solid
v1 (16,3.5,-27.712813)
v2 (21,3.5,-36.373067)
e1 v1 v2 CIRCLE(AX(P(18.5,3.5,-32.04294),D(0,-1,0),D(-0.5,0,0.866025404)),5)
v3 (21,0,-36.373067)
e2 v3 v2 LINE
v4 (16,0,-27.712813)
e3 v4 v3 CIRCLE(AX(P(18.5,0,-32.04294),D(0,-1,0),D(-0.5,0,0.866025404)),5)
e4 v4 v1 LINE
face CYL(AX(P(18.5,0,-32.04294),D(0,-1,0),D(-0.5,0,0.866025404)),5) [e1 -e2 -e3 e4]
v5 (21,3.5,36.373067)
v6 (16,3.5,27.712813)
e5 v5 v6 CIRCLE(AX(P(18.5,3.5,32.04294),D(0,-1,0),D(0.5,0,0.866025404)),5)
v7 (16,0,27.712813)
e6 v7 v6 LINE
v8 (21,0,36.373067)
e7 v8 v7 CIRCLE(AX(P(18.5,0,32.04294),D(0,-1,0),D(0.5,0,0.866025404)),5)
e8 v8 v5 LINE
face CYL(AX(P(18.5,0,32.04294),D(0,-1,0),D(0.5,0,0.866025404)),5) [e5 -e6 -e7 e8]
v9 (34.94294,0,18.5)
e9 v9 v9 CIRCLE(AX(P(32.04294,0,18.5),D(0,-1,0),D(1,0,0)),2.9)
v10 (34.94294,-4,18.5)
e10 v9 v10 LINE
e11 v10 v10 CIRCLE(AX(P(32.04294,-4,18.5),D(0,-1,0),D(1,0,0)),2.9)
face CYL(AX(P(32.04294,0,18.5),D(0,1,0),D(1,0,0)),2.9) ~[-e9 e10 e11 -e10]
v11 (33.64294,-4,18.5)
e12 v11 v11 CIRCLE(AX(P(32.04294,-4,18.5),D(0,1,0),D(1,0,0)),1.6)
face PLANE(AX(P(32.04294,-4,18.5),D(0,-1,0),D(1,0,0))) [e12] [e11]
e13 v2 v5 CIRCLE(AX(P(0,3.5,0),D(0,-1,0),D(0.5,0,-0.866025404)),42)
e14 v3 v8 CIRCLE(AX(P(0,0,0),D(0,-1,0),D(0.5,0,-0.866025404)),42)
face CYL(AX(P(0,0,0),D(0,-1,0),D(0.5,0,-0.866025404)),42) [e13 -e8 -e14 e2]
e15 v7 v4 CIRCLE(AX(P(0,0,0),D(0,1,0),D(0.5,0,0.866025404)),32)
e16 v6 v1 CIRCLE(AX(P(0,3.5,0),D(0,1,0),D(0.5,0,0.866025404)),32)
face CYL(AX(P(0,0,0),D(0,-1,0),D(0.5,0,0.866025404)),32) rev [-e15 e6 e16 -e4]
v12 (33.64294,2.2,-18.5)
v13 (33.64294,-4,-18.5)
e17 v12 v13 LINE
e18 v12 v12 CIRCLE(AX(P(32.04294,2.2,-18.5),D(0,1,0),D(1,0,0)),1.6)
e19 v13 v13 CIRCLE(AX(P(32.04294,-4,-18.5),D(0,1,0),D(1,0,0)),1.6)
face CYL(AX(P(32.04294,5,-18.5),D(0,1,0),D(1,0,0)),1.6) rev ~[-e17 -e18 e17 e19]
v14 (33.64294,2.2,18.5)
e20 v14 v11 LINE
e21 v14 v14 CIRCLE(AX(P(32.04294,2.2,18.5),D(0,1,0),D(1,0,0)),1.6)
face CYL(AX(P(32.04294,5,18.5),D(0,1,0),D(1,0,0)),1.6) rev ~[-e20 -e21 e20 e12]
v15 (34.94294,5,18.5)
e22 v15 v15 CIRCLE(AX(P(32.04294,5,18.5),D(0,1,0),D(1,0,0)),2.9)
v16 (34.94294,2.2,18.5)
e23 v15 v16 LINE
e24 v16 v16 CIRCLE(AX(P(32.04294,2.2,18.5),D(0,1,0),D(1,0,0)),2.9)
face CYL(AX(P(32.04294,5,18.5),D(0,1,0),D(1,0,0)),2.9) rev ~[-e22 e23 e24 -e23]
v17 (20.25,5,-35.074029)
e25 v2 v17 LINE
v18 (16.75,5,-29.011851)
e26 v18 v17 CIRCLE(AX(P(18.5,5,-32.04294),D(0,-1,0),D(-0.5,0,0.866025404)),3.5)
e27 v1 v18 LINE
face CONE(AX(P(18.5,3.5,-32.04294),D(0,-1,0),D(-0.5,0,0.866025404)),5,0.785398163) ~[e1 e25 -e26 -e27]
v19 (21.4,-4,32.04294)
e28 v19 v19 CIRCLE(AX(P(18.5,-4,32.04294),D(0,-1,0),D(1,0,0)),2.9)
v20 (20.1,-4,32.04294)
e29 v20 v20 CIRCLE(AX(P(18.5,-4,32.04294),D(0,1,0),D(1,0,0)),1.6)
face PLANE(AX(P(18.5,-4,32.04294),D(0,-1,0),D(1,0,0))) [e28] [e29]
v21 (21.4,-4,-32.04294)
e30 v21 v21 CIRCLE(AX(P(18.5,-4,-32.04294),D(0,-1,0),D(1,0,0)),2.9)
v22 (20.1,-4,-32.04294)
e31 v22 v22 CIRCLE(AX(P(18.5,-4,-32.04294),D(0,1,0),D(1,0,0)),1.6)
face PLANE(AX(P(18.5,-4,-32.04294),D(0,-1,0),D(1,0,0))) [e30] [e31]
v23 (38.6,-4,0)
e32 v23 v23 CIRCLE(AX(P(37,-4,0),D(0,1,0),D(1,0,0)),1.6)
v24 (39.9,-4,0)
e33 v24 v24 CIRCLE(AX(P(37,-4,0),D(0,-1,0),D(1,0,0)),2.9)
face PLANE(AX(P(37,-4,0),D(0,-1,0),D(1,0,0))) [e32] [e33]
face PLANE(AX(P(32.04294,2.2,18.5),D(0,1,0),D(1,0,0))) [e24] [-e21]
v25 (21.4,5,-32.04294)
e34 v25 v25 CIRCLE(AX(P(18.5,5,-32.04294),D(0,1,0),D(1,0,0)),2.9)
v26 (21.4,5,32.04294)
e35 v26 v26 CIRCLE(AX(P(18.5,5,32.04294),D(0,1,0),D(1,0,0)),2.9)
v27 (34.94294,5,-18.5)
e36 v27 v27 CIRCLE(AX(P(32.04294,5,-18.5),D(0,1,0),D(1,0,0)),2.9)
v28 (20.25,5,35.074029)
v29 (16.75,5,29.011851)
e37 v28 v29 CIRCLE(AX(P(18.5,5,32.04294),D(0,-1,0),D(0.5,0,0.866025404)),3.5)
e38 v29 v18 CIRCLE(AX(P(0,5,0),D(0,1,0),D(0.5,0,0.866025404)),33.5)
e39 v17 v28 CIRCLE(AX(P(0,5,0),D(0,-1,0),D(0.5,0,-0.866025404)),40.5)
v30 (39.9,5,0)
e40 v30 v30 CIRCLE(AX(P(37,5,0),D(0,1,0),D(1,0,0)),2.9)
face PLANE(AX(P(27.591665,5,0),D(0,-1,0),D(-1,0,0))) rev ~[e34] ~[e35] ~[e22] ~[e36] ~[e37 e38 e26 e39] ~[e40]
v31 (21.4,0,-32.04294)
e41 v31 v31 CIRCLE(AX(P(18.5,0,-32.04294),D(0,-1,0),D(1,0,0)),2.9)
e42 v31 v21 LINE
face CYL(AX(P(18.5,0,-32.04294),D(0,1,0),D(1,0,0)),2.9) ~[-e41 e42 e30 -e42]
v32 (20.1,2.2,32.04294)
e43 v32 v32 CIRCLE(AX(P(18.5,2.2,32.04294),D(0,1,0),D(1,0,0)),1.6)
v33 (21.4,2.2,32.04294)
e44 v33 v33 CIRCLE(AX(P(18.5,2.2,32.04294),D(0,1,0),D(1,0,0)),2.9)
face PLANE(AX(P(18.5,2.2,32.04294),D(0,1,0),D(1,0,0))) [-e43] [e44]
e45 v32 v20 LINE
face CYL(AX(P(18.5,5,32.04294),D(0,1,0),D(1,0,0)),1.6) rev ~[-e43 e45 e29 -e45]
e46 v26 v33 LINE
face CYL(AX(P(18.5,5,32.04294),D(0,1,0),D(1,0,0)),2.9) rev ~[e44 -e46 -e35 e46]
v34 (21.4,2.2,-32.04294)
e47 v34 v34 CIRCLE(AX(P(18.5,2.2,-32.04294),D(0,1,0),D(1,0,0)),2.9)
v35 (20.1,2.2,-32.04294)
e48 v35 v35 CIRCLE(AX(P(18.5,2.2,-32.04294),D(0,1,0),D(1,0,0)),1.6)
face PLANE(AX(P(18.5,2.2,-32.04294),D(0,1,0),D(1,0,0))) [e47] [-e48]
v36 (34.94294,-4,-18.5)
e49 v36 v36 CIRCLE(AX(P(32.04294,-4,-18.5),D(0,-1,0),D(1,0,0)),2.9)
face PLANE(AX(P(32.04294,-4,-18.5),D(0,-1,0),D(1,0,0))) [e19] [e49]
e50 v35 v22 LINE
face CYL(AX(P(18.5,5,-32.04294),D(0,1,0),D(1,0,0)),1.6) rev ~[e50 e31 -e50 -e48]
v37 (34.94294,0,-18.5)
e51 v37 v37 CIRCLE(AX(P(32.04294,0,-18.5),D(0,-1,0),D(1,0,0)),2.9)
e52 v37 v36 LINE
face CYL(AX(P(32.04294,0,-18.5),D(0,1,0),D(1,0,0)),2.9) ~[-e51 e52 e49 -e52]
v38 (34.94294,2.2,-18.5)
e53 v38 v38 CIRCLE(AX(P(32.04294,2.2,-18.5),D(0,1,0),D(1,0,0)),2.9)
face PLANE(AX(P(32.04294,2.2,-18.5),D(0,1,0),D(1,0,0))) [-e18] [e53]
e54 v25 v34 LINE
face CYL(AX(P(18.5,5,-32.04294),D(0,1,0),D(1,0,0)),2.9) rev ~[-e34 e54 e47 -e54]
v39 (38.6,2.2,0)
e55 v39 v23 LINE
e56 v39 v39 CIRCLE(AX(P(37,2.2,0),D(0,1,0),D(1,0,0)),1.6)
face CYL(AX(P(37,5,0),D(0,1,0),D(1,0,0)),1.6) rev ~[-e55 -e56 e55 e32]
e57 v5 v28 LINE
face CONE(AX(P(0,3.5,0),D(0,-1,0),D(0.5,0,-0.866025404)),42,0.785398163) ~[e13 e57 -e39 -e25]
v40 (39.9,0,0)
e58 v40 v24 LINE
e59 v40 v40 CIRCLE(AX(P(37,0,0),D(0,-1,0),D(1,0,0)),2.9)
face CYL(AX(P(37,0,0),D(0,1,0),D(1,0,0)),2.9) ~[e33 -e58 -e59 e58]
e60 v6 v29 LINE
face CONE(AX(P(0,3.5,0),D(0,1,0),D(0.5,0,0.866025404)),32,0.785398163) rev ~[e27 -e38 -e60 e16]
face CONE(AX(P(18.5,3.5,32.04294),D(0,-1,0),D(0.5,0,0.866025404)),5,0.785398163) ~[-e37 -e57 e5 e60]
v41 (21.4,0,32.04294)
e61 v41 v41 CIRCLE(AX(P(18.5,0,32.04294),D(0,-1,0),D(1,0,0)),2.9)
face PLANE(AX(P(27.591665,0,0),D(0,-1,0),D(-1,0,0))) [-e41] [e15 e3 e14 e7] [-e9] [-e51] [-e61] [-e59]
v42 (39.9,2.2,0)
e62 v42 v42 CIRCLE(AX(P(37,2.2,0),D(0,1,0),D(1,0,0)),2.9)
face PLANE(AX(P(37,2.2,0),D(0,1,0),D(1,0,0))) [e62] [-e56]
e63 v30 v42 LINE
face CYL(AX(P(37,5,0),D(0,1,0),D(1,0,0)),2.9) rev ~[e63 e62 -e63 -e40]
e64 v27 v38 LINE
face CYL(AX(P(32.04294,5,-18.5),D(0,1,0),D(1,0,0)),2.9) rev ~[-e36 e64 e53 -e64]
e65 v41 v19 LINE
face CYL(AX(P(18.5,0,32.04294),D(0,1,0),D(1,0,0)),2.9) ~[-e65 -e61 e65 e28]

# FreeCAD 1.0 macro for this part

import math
import FreeCAD as App
import Part
import Sketcher


def edges_at(feature, points):
    """Names of the edges that pass closest to the given points."""
    edges = feature.Shape.Edges
    near = lambda p: min(range(len(edges)), key=lambda i: edges[i].distToShape(Part.Vertex(*p))[0])
    return sorted({f"Edge{near(p) + 1}" for p in points})

doc = App.newDocument("Part")
body = doc.addObject("PartDesign::Body", "Body")

sketch1 = body.newObject("Sketcher::SketchObject", "Sketch")
sketch1.AttachmentSupport = (doc.getObject("XZ_Plane"), [""])
sketch1.MapMode = "FlatFace"
sketch1.addGeometry([
    Part.ArcOfCircle(Part.Circle(App.Vector(18.5, 32.04294, 0), App.Vector(0, 0, 1), 5), math.radians(60), math.radians(240)),
    Part.ArcOfCircle(Part.Circle(App.Vector(0, 0, 0), App.Vector(0, 0, 1), 42), math.radians(-60), math.radians(60)),
    Part.ArcOfCircle(Part.Circle(App.Vector(18.5, -32.04294, 0), App.Vector(0, 0, 1), 5), math.radians(120), math.radians(300)),
    Part.ArcOfCircle(Part.Circle(App.Vector(0, 0, 0), App.Vector(0, 0, 1), 32), math.radians(-60), math.radians(60)),
], False)
sketch1.addConstraint([
    Sketcher.Constraint("Tangent", 0, 1, 1, 2),
    Sketcher.Constraint("Tangent", 1, 1, 2, 2),
    Sketcher.Constraint("Tangent", 2, 1, 3, 1),
    Sketcher.Constraint("Tangent", 3, 2, 0, 2),
    Sketcher.Constraint("Coincident", 1, 3, -1, 1),
    Sketcher.Constraint("Coincident", 3, 3, -1, 1),
    Sketcher.Constraint("Vertical", 0, 3, 2, 3),
    Sketcher.Constraint("Radius", 0, 5.0),
    Sketcher.Constraint("Radius", 1, 42.0),
    Sketcher.Constraint("DistanceX", -1, 1, 0, 1, 21.0),
])
pad1 = body.newObject("PartDesign::Pad", "Pad")
pad1.Profile = sketch1
pad1.Length = 5
pad1.Reversed = True

sketch2 = body.newObject("Sketcher::SketchObject", "Sketch001")
sketch2.AttachmentSupport = (doc.getObject("XZ_Plane"), [""])
sketch2.MapMode = "FlatFace"
sketch2.addGeometry([
    Part.Circle(App.Vector(18.5, 32.04294, 0), App.Vector(0, 0, 1), 2.9),
    Part.Circle(App.Vector(32.04294, 18.5, 0), App.Vector(0, 0, 1), 2.9),
    Part.Circle(App.Vector(37, 0, 0), App.Vector(0, 0, 1), 2.9),
    Part.Circle(App.Vector(32.04294, -18.5, 0), App.Vector(0, 0, 1), 2.9),
    Part.Circle(App.Vector(18.5, -32.04294, 0), App.Vector(0, 0, 1), 2.9),
], False)
sketch2.addConstraint([
    Sketcher.Constraint("Equal", 0, 1),
    Sketcher.Constraint("Equal", 1, 2),
    Sketcher.Constraint("Equal", 2, 3),
    Sketcher.Constraint("Equal", 3, 4),
    Sketcher.Constraint("Symmetric", 1, 3, 3, 3, -1),
    Sketcher.Constraint("Symmetric", 0, 3, 4, 3, -1),
    Sketcher.Constraint("PointOnObject", 2, 3, -1),
    Sketcher.Constraint("Diameter", 0, 5.8),
    Sketcher.Constraint("DistanceX", -1, 1, 2, 3, 37.0),
    Sketcher.Constraint("DistanceY", 3, 3, 1, 3, 37.0),
    Sketcher.Constraint("DistanceX", -1, 1, 0, 3, 18.5),
    Sketcher.Constraint("DistanceY", -1, 1, 0, 3, 32.04294),
    Sketcher.Constraint("DistanceX", -1, 1, 1, 3, 32.04294),
])
pad2 = body.newObject("PartDesign::Pad", "Pad001")
pad2.Profile = sketch2
pad2.Length = 4

sketch3 = body.newObject("Sketcher::SketchObject", "Sketch002")
sketch3.AttachmentSupport = (doc.getObject("XZ_Plane"), [""])
sketch3.MapMode = "FlatFace"
sketch3.AttachmentOffset = App.Placement(App.Vector(0, 0, -5), App.Rotation())
sketch3.addGeometry([
    Part.Circle(App.Vector(18.5, -32.04294, 0), App.Vector(0, 0, 1), 1.6),
    Part.Circle(App.Vector(32.04294, -18.5, 0), App.Vector(0, 0, 1), 1.6),
    Part.Circle(App.Vector(37, 0, 0), App.Vector(0, 0, 1), 1.6),
    Part.Circle(App.Vector(32.04294, 18.5, 0), App.Vector(0, 0, 1), 1.6),
    Part.Circle(App.Vector(18.5, 32.04294, 0), App.Vector(0, 0, 1), 1.6),
], False)
sketch3.addConstraint([
    Sketcher.Constraint("Equal", 0, 1),
    Sketcher.Constraint("Equal", 1, 2),
    Sketcher.Constraint("Equal", 2, 3),
    Sketcher.Constraint("Equal", 3, 4),
    Sketcher.Constraint("Symmetric", 1, 3, 3, 3, -1),
    Sketcher.Constraint("Symmetric", 0, 3, 4, 3, -1),
    Sketcher.Constraint("PointOnObject", 2, 3, -1),
    Sketcher.Constraint("Diameter", 0, 3.2),
    Sketcher.Constraint("DistanceX", -1, 1, 2, 3, 37.0),
    Sketcher.Constraint("DistanceY", 1, 3, 3, 3, 37.0),
    Sketcher.Constraint("DistanceX", -1, 1, 0, 3, 18.5),
    Sketcher.Constraint("DistanceY", 0, 3, -1, 1, 32.04294),
    Sketcher.Constraint("DistanceX", -1, 1, 1, 3, 32.04294),
])
pocket1 = body.newObject("PartDesign::Pocket", "Pocket")
pocket1.Profile = sketch3
pocket1.Type = "ThroughAll"
pocket1.Reversed = True

sketch4 = body.newObject("Sketcher::SketchObject", "Sketch003")
sketch4.AttachmentSupport = (doc.getObject("XZ_Plane"), [""])
sketch4.MapMode = "FlatFace"
sketch4.AttachmentOffset = App.Placement(App.Vector(0, 0, -5), App.Rotation())
sketch4.addGeometry([
    Part.Circle(App.Vector(18.5, -32.04294, 0), App.Vector(0, 0, 1), 2.9),
    Part.Circle(App.Vector(32.04294, -18.5, 0), App.Vector(0, 0, 1), 2.9),
    Part.Circle(App.Vector(37, 0, 0), App.Vector(0, 0, 1), 2.9),
    Part.Circle(App.Vector(32.04294, 18.5, 0), App.Vector(0, 0, 1), 2.9),
    Part.Circle(App.Vector(18.5, 32.04294, 0), App.Vector(0, 0, 1), 2.9),
], False)
sketch4.addConstraint([
    Sketcher.Constraint("Equal", 0, 1),
    Sketcher.Constraint("Equal", 1, 2),
    Sketcher.Constraint("Equal", 2, 3),
    Sketcher.Constraint("Equal", 3, 4),
    Sketcher.Constraint("Symmetric", 1, 3, 3, 3, -1),
    Sketcher.Constraint("Symmetric", 0, 3, 4, 3, -1),
    Sketcher.Constraint("PointOnObject", 2, 3, -1),
    Sketcher.Constraint("Diameter", 0, 5.8),
    Sketcher.Constraint("DistanceX", -1, 1, 2, 3, 37.0),
    Sketcher.Constraint("DistanceY", 1, 3, 3, 3, 37.0),
    Sketcher.Constraint("DistanceX", -1, 1, 0, 3, 18.5),
    Sketcher.Constraint("DistanceY", 0, 3, -1, 1, 32.04294),
    Sketcher.Constraint("DistanceX", -1, 1, 1, 3, 32.04294),
])
pocket2 = body.newObject("PartDesign::Pocket", "Pocket001")
pocket2.Profile = sketch4
pocket2.Length = 2.8
pocket2.Reversed = True
doc.recompute()

chamfer = body.newObject("PartDesign::Chamfer", "Chamfer")
chamfer.Base = (pocket2, edges_at(pocket2, [
    (42, 5, 0),
    (14.17, 5, -34.543),
    (32, 5, 0),
    (14.17, 5, 34.543),
]))
chamfer.Size = 1.5

doc.recompute()
